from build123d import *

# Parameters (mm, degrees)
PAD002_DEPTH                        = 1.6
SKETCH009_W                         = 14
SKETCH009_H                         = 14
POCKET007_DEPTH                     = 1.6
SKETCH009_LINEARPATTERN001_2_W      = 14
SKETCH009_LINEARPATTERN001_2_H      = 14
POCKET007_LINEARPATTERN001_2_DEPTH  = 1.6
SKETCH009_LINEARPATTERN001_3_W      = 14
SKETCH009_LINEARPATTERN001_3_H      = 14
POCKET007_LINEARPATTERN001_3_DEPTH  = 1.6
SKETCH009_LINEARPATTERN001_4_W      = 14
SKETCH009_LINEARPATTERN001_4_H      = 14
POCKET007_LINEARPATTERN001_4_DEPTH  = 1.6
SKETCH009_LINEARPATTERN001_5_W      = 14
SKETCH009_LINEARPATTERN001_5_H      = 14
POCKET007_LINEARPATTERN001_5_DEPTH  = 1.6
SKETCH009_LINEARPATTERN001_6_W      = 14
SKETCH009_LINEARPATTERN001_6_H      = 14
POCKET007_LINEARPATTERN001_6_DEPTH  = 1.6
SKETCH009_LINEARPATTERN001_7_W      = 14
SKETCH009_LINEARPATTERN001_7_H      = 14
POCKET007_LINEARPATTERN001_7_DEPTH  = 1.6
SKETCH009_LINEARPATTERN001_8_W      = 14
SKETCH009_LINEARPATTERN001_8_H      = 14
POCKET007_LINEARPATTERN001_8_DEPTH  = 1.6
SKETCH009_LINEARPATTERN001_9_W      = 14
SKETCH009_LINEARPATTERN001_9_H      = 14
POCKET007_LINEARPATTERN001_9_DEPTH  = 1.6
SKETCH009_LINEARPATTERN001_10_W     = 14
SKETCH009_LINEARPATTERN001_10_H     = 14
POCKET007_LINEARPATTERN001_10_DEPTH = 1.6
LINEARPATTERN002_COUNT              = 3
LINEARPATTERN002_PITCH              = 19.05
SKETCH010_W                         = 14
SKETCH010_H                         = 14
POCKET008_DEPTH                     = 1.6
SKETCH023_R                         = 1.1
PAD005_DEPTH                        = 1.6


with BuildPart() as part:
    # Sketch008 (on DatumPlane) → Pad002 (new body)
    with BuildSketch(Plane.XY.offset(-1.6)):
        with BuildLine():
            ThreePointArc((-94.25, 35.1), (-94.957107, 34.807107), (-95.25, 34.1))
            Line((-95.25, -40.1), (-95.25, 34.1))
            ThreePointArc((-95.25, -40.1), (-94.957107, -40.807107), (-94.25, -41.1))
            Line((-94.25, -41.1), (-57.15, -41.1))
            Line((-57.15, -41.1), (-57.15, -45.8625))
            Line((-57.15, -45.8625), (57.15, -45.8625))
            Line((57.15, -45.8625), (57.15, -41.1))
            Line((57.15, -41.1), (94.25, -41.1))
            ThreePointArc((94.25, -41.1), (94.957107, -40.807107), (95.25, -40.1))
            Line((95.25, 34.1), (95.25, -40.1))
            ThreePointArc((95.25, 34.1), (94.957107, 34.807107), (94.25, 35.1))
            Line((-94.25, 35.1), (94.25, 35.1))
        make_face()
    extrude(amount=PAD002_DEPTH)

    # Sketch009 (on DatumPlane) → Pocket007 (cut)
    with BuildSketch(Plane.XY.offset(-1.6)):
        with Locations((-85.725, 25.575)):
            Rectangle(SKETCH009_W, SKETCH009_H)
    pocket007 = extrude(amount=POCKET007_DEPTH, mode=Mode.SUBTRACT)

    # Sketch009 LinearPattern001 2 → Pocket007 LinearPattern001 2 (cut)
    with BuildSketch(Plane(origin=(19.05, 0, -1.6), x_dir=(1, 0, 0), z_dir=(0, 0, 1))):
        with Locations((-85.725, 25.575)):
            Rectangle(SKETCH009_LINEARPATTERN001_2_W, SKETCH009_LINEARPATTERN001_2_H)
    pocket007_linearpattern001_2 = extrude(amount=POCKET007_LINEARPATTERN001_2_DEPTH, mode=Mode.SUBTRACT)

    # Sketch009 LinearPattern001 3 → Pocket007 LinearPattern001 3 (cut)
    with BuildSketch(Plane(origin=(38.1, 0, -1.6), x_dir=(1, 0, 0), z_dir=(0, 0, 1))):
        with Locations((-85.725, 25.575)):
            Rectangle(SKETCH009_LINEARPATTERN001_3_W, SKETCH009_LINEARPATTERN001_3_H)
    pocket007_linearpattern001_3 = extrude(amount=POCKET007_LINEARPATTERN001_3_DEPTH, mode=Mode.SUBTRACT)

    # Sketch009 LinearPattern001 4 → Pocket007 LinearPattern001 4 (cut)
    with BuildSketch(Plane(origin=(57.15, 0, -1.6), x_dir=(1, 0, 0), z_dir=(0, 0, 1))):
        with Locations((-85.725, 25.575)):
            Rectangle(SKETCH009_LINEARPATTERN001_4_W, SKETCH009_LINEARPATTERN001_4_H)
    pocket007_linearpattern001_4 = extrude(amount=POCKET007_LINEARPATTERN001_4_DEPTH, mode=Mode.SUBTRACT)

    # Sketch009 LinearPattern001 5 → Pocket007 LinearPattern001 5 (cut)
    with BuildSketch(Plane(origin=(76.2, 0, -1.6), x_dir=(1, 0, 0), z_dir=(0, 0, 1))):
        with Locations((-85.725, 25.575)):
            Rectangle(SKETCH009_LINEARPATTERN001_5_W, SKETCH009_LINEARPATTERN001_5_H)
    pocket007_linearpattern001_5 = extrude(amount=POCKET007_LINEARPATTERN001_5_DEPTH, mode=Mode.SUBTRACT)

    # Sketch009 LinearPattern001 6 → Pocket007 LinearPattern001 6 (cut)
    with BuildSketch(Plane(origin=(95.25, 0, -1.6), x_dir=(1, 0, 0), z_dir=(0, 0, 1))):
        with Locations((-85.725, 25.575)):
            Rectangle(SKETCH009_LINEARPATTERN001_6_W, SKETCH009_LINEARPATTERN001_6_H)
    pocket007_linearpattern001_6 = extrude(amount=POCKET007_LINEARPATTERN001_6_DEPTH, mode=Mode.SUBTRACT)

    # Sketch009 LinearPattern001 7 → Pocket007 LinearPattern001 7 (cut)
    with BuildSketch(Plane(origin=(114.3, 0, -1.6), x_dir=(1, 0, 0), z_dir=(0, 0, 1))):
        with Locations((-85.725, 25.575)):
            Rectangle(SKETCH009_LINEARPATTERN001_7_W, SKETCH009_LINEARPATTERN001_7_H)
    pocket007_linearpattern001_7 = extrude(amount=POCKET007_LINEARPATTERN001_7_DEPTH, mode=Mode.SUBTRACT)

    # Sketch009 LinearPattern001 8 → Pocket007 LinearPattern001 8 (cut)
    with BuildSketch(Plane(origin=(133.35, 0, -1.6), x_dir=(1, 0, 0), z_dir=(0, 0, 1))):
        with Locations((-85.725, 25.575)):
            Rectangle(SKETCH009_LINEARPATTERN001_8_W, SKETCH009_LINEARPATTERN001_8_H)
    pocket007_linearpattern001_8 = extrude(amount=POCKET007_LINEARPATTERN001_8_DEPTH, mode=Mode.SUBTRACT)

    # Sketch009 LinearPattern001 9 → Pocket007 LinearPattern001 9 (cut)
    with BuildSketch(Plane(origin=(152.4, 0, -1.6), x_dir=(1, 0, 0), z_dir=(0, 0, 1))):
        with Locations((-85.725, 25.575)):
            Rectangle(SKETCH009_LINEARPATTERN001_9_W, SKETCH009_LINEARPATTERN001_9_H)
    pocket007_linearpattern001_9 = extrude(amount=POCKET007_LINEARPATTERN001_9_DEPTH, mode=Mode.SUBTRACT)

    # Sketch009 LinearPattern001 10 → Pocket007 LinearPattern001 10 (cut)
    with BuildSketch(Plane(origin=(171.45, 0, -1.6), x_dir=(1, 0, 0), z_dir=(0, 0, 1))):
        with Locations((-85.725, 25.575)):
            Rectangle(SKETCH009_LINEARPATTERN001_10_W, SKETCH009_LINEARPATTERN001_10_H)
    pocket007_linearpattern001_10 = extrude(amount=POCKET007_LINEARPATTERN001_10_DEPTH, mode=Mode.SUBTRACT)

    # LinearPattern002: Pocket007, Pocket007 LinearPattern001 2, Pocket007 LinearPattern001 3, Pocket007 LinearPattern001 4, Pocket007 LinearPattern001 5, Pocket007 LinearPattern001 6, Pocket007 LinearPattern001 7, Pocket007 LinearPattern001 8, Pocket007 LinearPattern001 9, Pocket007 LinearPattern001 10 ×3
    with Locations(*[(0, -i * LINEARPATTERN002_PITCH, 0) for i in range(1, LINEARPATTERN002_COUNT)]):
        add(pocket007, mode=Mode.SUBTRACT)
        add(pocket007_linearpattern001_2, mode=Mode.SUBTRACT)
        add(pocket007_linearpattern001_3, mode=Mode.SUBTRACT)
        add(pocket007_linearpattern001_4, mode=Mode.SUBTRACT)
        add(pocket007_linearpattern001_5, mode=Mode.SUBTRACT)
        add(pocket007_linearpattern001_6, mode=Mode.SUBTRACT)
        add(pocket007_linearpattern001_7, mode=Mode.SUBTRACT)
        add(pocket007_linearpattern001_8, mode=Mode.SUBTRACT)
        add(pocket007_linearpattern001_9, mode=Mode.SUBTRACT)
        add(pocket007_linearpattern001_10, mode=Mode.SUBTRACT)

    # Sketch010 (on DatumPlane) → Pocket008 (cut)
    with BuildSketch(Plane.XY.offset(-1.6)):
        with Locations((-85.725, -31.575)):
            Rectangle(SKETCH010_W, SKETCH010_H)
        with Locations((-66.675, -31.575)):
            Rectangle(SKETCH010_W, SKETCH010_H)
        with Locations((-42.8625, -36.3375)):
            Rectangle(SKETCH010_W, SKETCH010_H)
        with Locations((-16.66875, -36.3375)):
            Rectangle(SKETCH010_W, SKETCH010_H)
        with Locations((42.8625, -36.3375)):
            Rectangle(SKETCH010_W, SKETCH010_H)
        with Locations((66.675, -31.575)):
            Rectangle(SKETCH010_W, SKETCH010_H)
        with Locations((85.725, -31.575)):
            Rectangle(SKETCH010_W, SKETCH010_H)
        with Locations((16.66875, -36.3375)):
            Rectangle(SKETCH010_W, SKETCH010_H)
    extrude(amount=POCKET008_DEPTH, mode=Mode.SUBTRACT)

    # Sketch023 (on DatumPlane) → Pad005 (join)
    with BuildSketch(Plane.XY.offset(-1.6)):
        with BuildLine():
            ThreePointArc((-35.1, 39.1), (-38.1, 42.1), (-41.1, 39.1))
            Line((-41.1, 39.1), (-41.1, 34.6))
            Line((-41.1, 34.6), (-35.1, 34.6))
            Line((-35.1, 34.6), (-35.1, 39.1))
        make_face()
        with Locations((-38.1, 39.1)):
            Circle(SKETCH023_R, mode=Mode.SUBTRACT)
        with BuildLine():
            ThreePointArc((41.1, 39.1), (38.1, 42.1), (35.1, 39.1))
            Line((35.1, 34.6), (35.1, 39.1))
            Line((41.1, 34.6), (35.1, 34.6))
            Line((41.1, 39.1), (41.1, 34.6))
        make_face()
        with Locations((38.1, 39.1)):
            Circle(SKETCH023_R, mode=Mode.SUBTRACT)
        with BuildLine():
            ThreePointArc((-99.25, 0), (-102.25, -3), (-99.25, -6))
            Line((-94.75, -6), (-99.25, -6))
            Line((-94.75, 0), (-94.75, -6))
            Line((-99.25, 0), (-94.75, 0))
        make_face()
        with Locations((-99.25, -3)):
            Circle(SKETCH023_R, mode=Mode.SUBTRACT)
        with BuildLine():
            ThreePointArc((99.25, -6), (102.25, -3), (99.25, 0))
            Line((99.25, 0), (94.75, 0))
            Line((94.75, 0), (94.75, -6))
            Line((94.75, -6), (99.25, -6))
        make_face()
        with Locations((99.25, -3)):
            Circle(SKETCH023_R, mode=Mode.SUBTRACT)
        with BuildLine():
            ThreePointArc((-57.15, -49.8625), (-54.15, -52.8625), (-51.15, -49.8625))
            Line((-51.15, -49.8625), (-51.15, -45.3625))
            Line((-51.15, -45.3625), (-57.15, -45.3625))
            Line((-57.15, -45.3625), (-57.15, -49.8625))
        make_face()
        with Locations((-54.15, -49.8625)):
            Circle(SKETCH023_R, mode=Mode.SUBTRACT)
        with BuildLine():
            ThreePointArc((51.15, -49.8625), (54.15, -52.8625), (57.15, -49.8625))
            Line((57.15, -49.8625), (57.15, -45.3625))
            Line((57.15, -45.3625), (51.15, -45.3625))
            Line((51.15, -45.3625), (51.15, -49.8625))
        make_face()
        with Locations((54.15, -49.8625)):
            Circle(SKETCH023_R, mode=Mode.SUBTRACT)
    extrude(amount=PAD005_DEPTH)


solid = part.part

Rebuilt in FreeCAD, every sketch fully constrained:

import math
import FreeCAD as App
import Part
import Sketcher

V = App.Vector


def add_polygon(sketch, points):
    """Adds a closed chain of lines whose ends are joined by coincident constraints."""
    first, n = sketch.GeometryCount, len(points)
    for a, b in zip(points, points[1:] + points[:1]):
        sketch.addGeometry(Part.LineSegment(App.Vector(*a, 0), App.Vector(*b, 0)), False)
    for i in range(n):
        sketch.addConstraint(Sketcher.Constraint("Coincident", first + i, 2, first + (i + 1) % n, 1))

doc = App.newDocument("Part")
body = doc.addObject("PartDesign::Body", "Body")

sketch1 = body.newObject("Sketcher::SketchObject", "Sketch")
sketch1.AttachmentSupport = (doc.getObject("XY_Plane"), [""])
sketch1.MapMode = "FlatFace"
sketch1.AttachmentOffset = App.Placement(V(0, 0, -1.6), App.Rotation())
sketch1.addGeometry(Part.ArcOfCircle(Part.Circle(V(-94.3, 34.1, 0), V(0, 0, 1), 1), math.radians(90), math.radians(180)), False)
sketch1.addGeometry(Part.LineSegment(V(-95.2, 34.1, 0), V(-95.2, -40.1, 0)), False)
sketch1.addGeometry(Part.ArcOfCircle(Part.Circle(V(-94.3, -40.1, 0), V(0, 0, 1), 1), math.radians(180), math.radians(270)), False)
sketch1.addGeometry(Part.LineSegment(V(-94.2, -41.1, 0), V(-57.1, -41.1, 0)), False)
sketch1.addGeometry(Part.LineSegment(V(-57.1, -41.1, 0), V(-57.1, -45.9, 0)), False)
sketch1.addGeometry(Part.LineSegment(V(-57.1, -45.9, 0), V(57.1, -45.9, 0)), False)
sketch1.addGeometry(Part.LineSegment(V(57.1, -45.9, 0), V(57.1, -41.1, 0)), False)
sketch1.addGeometry(Part.LineSegment(V(57.1, -41.1, 0), V(94.2, -41.1, 0)), False)
sketch1.addGeometry(Part.ArcOfCircle(Part.Circle(V(94.3, -40.1, 0), V(0, 0, 1), 1), math.radians(-90), math.radians(0)), False)
sketch1.addGeometry(Part.LineSegment(V(95.2, -40.1, 0), V(95.2, 34.1, 0)), False)
sketch1.addGeometry(Part.ArcOfCircle(Part.Circle(V(94.3, 34.1, 0), V(0, 0, 1), 1), math.radians(0), math.radians(90)), False)
sketch1.addGeometry(Part.LineSegment(V(94.2, 35.1, 0), V(-94.2, 35.1, 0)), False)
sketch1.addConstraint(Sketcher.Constraint("Tangent", 0, 2, 1, 1))
sketch1.addConstraint(Sketcher.Constraint("Tangent", 1, 2, 2, 1))
sketch1.addConstraint(Sketcher.Constraint("Tangent", 2, 2, 3, 1))
sketch1.addConstraint(Sketcher.Constraint("Coincident", 3, 2, 4, 1))
sketch1.addConstraint(Sketcher.Constraint("Coincident", 4, 2, 5, 1))
sketch1.addConstraint(Sketcher.Constraint("Coincident", 5, 2, 6, 1))
sketch1.addConstraint(Sketcher.Constraint("Coincident", 6, 2, 7, 1))
sketch1.addConstraint(Sketcher.Constraint("Tangent", 7, 2, 8, 1))
sketch1.addConstraint(Sketcher.Constraint("Tangent", 8, 2, 9, 1))
sketch1.addConstraint(Sketcher.Constraint("Tangent", 9, 2, 10, 1))
sketch1.addConstraint(Sketcher.Constraint("Tangent", 10, 2, 11, 1))
sketch1.addConstraint(Sketcher.Constraint("Tangent", 11, 2, 0, 1))
sketch1.addConstraint(Sketcher.Constraint("Vertical", 1))
sketch1.addConstraint(Sketcher.Constraint("Horizontal", 3))
sketch1.addConstraint(Sketcher.Constraint("Vertical", 4))
sketch1.addConstraint(Sketcher.Constraint("Horizontal", 5))
sketch1.addConstraint(Sketcher.Constraint("Vertical", 6))
sketch1.addConstraint(Sketcher.Constraint("Horizontal", 7))
sketch1.addConstraint(Sketcher.Constraint("Vertical", 9))
sketch1.addConstraint(Sketcher.Constraint("Horizontal", 11))
sketch1.addConstraint(Sketcher.Constraint("Equal", 0, 2))
sketch1.addConstraint(Sketcher.Constraint("Equal", 2, 8))
sketch1.addConstraint(Sketcher.Constraint("Equal", 8, 10))
sketch1.addConstraint(Sketcher.Constraint("Symmetric", 2, 3, 8, 3, -2))
sketch1.addConstraint(Sketcher.Constraint("Equal", 3, 7))
sketch1.addConstraint(Sketcher.Constraint("Radius", 0, 0.999999))
sketch1.addConstraint(Sketcher.Constraint("DistanceX", 3, 1, 3, 2, 37.1))
sketch1.addConstraint(Sketcher.Constraint("DistanceX", 5, 1, 5, 2, 114.3))
sketch1.addConstraint(Sketcher.Constraint("DistanceY", 1, 2, 1, 1, 74.2))
sketch1.addConstraint(Sketcher.Constraint("DistanceY", -1, 1, 0, 3, 34.100001))
sketch1.addConstraint(Sketcher.Constraint("DistanceY", 4, 2, 4, 1, 4.7625))
pad1 = body.newObject("PartDesign::Pad", "Pad")
pad1.Profile = sketch1
pad1.Length = 1.6

sketch2 = body.newObject("Sketcher::SketchObject", "Sketch001")
sketch2.AttachmentSupport = (doc.getObject("XY_Plane"), [""])
sketch2.MapMode = "FlatFace"
sketch2.AttachmentOffset = App.Placement(V(0, 0, -1.6), App.Rotation())
add_polygon(sketch2, [(-93, 33), (-93, 19), (-79, 19), (-79, 33)])
sketch2.addConstraint(Sketcher.Constraint("Vertical", 0))
sketch2.addConstraint(Sketcher.Constraint("Horizontal", 1))
sketch2.addConstraint(Sketcher.Constraint("Vertical", 2))
sketch2.addConstraint(Sketcher.Constraint("Horizontal", 3))
sketch2.addConstraint(Sketcher.Constraint("Equal", 3, 0))
sketch2.addConstraint(Sketcher.Constraint("DistanceX", 1, 1, 1, 2, 14.0))
sketch2.addConstraint(Sketcher.Constraint("DistanceX", 0, 2, -1, 1, 92.725))
sketch2.addConstraint(Sketcher.Constraint("DistanceY", -1, 1, 0, 2, 18.575))
pocket1 = body.newObject("PartDesign::Pocket", "Pocket")
pocket1.Profile = sketch2
pocket1.Length = 1.6
pocket1.Reversed = True

sketch3 = body.newObject("Sketcher::SketchObject", "Sketch002")
sketch3.AttachmentSupport = (doc.getObject("XY_Plane"), [""])
sketch3.MapMode = "FlatFace"
sketch3.AttachmentOffset = App.Placement(V(0, 0, -1.6), App.Rotation())
add_polygon(sketch3, [(-74, 33), (-74, 19), (-60, 19), (-60, 33)])
sketch3.addConstraint(Sketcher.Constraint("Vertical", 0))
sketch3.addConstraint(Sketcher.Constraint("Horizontal", 1))
sketch3.addConstraint(Sketcher.Constraint("Vertical", 2))
sketch3.addConstraint(Sketcher.Constraint("Horizontal", 3))
sketch3.addConstraint(Sketcher.Constraint("Equal", 3, 0))
sketch3.addConstraint(Sketcher.Constraint("DistanceX", 1, 1, 1, 2, 14.0))
sketch3.addConstraint(Sketcher.Constraint("DistanceX", 0, 2, -1, 1, 73.675))
sketch3.addConstraint(Sketcher.Constraint("DistanceY", -1, 1, 0, 2, 18.575))
pocket2 = body.newObject("PartDesign::Pocket", "Pocket001")
pocket2.Profile = sketch3
pocket2.Length = 1.6
pocket2.Reversed = True

sketch4 = body.newObject("Sketcher::SketchObject", "Sketch003")
sketch4.AttachmentSupport = (doc.getObject("XY_Plane"), [""])
sketch4.MapMode = "FlatFace"
sketch4.AttachmentOffset = App.Placement(V(0, 0, -1.6), App.Rotation())
add_polygon(sketch4, [(-55, 33), (-55, 19), (-41, 19), (-41, 33)])
sketch4.addConstraint(Sketcher.Constraint("Vertical", 0))
sketch4.addConstraint(Sketcher.Constraint("Horizontal", 1))
sketch4.addConstraint(Sketcher.Constraint("Vertical", 2))
sketch4.addConstraint(Sketcher.Constraint("Horizontal", 3))
sketch4.addConstraint(Sketcher.Constraint("Equal", 3, 0))
sketch4.addConstraint(Sketcher.Constraint("DistanceX", 1, 1, 1, 2, 14.0))
sketch4.addConstraint(Sketcher.Constraint("DistanceX", 0, 2, -1, 1, 54.625))
sketch4.addConstraint(Sketcher.Constraint("DistanceY", -1, 1, 0, 2, 18.575))
pocket3 = body.newObject("PartDesign::Pocket", "Pocket002")
pocket3.Profile = sketch4
pocket3.Length = 1.6
pocket3.Reversed = True

sketch5 = body.newObject("Sketcher::SketchObject", "Sketch004")
sketch5.AttachmentSupport = (doc.getObject("XY_Plane"), [""])
sketch5.MapMode = "FlatFace"
sketch5.AttachmentOffset = App.Placement(V(0, 0, -1.6), App.Rotation())
add_polygon(sketch5, [(-36, 33), (-36, 19), (-22, 19), (-22, 33)])
sketch5.addConstraint(Sketcher.Constraint("Vertical", 0))
sketch5.addConstraint(Sketcher.Constraint("Horizontal", 1))
sketch5.addConstraint(Sketcher.Constraint("Vertical", 2))
sketch5.addConstraint(Sketcher.Constraint("Horizontal", 3))
sketch5.addConstraint(Sketcher.Constraint("Equal", 3, 0))
sketch5.addConstraint(Sketcher.Constraint("DistanceX", 1, 1, 1, 2, 14.0))
sketch5.addConstraint(Sketcher.Constraint("DistanceX", 0, 2, -1, 1, 35.575))
sketch5.addConstraint(Sketcher.Constraint("DistanceY", -1, 1, 0, 2, 18.575))
pocket4 = body.newObject("PartDesign::Pocket", "Pocket003")
pocket4.Profile = sketch5
pocket4.Length = 1.6
pocket4.Reversed = True

sketch6 = body.newObject("Sketcher::SketchObject", "Sketch005")
sketch6.AttachmentSupport = (doc.getObject("XY_Plane"), [""])
sketch6.MapMode = "FlatFace"
sketch6.AttachmentOffset = App.Placement(V(0, 0, -1.6), App.Rotation())
add_polygon(sketch6, [(-17, 33), (-17, 19), (-3, 19), (-3, 33)])
sketch6.addConstraint(Sketcher.Constraint("Vertical", 0))
sketch6.addConstraint(Sketcher.Constraint("Horizontal", 1))
sketch6.addConstraint(Sketcher.Constraint("Vertical", 2))
sketch6.addConstraint(Sketcher.Constraint("Horizontal", 3))
sketch6.addConstraint(Sketcher.Constraint("Equal", 3, 0))
sketch6.addConstraint(Sketcher.Constraint("DistanceX", 1, 1, 1, 2, 14.0))
sketch6.addConstraint(Sketcher.Constraint("DistanceX", 0, 2, -1, 1, 16.525))
sketch6.addConstraint(Sketcher.Constraint("DistanceY", -1, 1, 0, 2, 18.575))
pocket5 = body.newObject("PartDesign::Pocket", "Pocket004")
pocket5.Profile = sketch6
pocket5.Length = 1.6
pocket5.Reversed = True

sketch7 = body.newObject("Sketcher::SketchObject", "Sketch006")
sketch7.AttachmentSupport = (doc.getObject("XY_Plane"), [""])
sketch7.MapMode = "FlatFace"
sketch7.AttachmentOffset = App.Placement(V(0, 0, -1.6), App.Rotation())
add_polygon(sketch7, [(3, 33), (3, 19), (17, 19), (17, 33)])
sketch7.addConstraint(Sketcher.Constraint("Vertical", 0))
sketch7.addConstraint(Sketcher.Constraint("Horizontal", 1))
sketch7.addConstraint(Sketcher.Constraint("Vertical", 2))
sketch7.addConstraint(Sketcher.Constraint("Horizontal", 3))
sketch7.addConstraint(Sketcher.Constraint("Equal", 3, 0))
sketch7.addConstraint(Sketcher.Constraint("DistanceX", 1, 1, 1, 2, 14.0))
sketch7.addConstraint(Sketcher.Constraint("DistanceX", -1, 1, 0, 2, 2.525))
sketch7.addConstraint(Sketcher.Constraint("DistanceY", -1, 1, 0, 2, 18.575))
pocket6 = body.newObject("PartDesign::Pocket", "Pocket005")
pocket6.Profile = sketch7
pocket6.Length = 1.6
pocket6.Reversed = True

sketch8 = body.newObject("Sketcher::SketchObject", "Sketch007")
sketch8.AttachmentSupport = (doc.getObject("XY_Plane"), [""])
sketch8.MapMode = "FlatFace"
sketch8.AttachmentOffset = App.Placement(V(0, 0, -1.6), App.Rotation())
add_polygon(sketch8, [(22, 33), (22, 19), (36, 19), (36, 33)])
sketch8.addConstraint(Sketcher.Constraint("Vertical", 0))
sketch8.addConstraint(Sketcher.Constraint("Horizontal", 1))
sketch8.addConstraint(Sketcher.Constraint("Vertical", 2))
sketch8.addConstraint(Sketcher.Constraint("Horizontal", 3))
sketch8.addConstraint(Sketcher.Constraint("Equal", 3, 0))
sketch8.addConstraint(Sketcher.Constraint("DistanceX", 1, 1, 1, 2, 14.0))
sketch8.addConstraint(Sketcher.Constraint("DistanceX", -1, 1, 0, 2, 21.575))
sketch8.addConstraint(Sketcher.Constraint("DistanceY", -1, 1, 0, 2, 18.575))
pocket7 = body.newObject("PartDesign::Pocket", "Pocket006")
pocket7.Profile = sketch8
pocket7.Length = 1.6
pocket7.Reversed = True

sketch9 = body.newObject("Sketcher::SketchObject", "Sketch008")
sketch9.AttachmentSupport = (doc.getObject("XY_Plane"), [""])
sketch9.MapMode = "FlatFace"
sketch9.AttachmentOffset = App.Placement(V(0, 0, -1.6), App.Rotation())
add_polygon(sketch9, [(41, 33), (41, 19), (55, 19), (55, 33)])
sketch9.addConstraint(Sketcher.Constraint("Vertical", 0))
sketch9.addConstraint(Sketcher.Constraint("Horizontal", 1))
sketch9.addConstraint(Sketcher.Constraint("Vertical", 2))
sketch9.addConstraint(Sketcher.Constraint("Horizontal", 3))
sketch9.addConstraint(Sketcher.Constraint("Equal", 3, 0))
sketch9.addConstraint(Sketcher.Constraint("DistanceX", 1, 1, 1, 2, 14.0))
sketch9.addConstraint(Sketcher.Constraint("DistanceX", -1, 1, 0, 2, 40.625))
sketch9.addConstraint(Sketcher.Constraint("DistanceY", -1, 1, 0, 2, 18.575))
pocket8 = body.newObject("PartDesign::Pocket", "Pocket007")
pocket8.Profile = sketch9
pocket8.Length = 1.6
pocket8.Reversed = True

sketch10 = body.newObject("Sketcher::SketchObject", "Sketch009")
sketch10.AttachmentSupport = (doc.getObject("XY_Plane"), [""])
sketch10.MapMode = "FlatFace"
sketch10.AttachmentOffset = App.Placement(V(0, 0, -1.6), App.Rotation())
add_polygon(sketch10, [(60, 33), (60, 19), (74, 19), (74, 33)])
sketch10.addConstraint(Sketcher.Constraint("Vertical", 0))
sketch10.addConstraint(Sketcher.Constraint("Horizontal", 1))
sketch10.addConstraint(Sketcher.Constraint("Vertical", 2))
sketch10.addConstraint(Sketcher.Constraint("Horizontal", 3))
sketch10.addConstraint(Sketcher.Constraint("Equal", 3, 0))
sketch10.addConstraint(Sketcher.Constraint("DistanceX", 1, 1, 1, 2, 14.0))
sketch10.addConstraint(Sketcher.Constraint("DistanceX", -1, 1, 0, 2, 59.675))
sketch10.addConstraint(Sketcher.Constraint("DistanceY", -1, 1, 0, 2, 18.575))
pocket9 = body.newObject("PartDesign::Pocket", "Pocket008")
pocket9.Profile = sketch10
pocket9.Length = 1.6
pocket9.Reversed = True

sketch11 = body.newObject("Sketcher::SketchObject", "Sketch010")
sketch11.AttachmentSupport = (doc.getObject("XY_Plane"), [""])
sketch11.MapMode = "FlatFace"
sketch11.AttachmentOffset = App.Placement(V(0, 0, -1.6), App.Rotation())
add_polygon(sketch11, [(79, 33), (79, 19), (93, 19), (93, 33)])
sketch11.addConstraint(Sketcher.Constraint("Vertical", 0))
sketch11.addConstraint(Sketcher.Constraint("Horizontal", 1))
sketch11.addConstraint(Sketcher.Constraint("Vertical", 2))
sketch11.addConstraint(Sketcher.Constraint("Horizontal", 3))
sketch11.addConstraint(Sketcher.Constraint("Equal", 3, 0))
sketch11.addConstraint(Sketcher.Constraint("DistanceX", 1, 1, 1, 2, 14.0))
sketch11.addConstraint(Sketcher.Constraint("DistanceX", -1, 1, 0, 2, 78.725))
sketch11.addConstraint(Sketcher.Constraint("DistanceY", -1, 1, 0, 2, 18.575))
pocket10 = body.newObject("PartDesign::Pocket", "Pocket009")
pocket10.Profile = sketch11
pocket10.Length = 1.6
pocket10.Reversed = True
doc.recompute()

linearpattern = body.newObject("PartDesign::LinearPattern", "LinearPattern")
linearpattern.Originals = [pocket1, pocket2, pocket3, pocket4, pocket5, pocket6, pocket7, pocket8, pocket9, pocket10]
linearpattern.Direction = (doc.getObject("Y_Axis"), [""])
linearpattern.Mode = "offset"
linearpattern.Offset = 19.05
linearpattern.Occurrences = 3
linearpattern.Reversed = True
body.Tip = linearpattern

sketch12 = body.newObject("Sketcher::SketchObject", "Sketch011")
sketch12.AttachmentSupport = (doc.getObject("XY_Plane"), [""])
sketch12.MapMode = "FlatFace"
sketch12.AttachmentOffset = App.Placement(V(0, 0, -1.6), App.Rotation())
add_polygon(sketch12, [(-93, -25), (-93, -39), (-79, -39), (-79, -25)])
add_polygon(sketch12, [(-74, -25), (-74, -39), (-60, -39), (-60, -25)])
add_polygon(sketch12, [(-50, -29), (-50, -43), (-36, -43), (-36, -29)])
add_polygon(sketch12, [(-24, -29), (-24, -43), (-10, -43), (-10, -29)])
add_polygon(sketch12, [(36, -29), (36, -43), (50, -43), (50, -29)])
add_polygon(sketch12, [(60, -25), (60, -39), (74, -39), (74, -25)])
add_polygon(sketch12, [(79, -25), (79, -39), (93, -39), (93, -25)])
add_polygon(sketch12, [(10, -29), (10, -43), (24, -43), (24, -29)])
sketch12.addConstraint(Sketcher.Constraint("Vertical", 0))
sketch12.addConstraint(Sketcher.Constraint("Horizontal", 1))
sketch12.addConstraint(Sketcher.Constraint("Vertical", 2))
sketch12.addConstraint(Sketcher.Constraint("Horizontal", 3))
sketch12.addConstraint(Sketcher.Constraint("Vertical", 4))
sketch12.addConstraint(Sketcher.Constraint("Horizontal", 5))
sketch12.addConstraint(Sketcher.Constraint("Vertical", 6))
sketch12.addConstraint(Sketcher.Constraint("Horizontal", 7))
sketch12.addConstraint(Sketcher.Constraint("Vertical", 8))
sketch12.addConstraint(Sketcher.Constraint("Horizontal", 9))
sketch12.addConstraint(Sketcher.Constraint("Vertical", 10))
sketch12.addConstraint(Sketcher.Constraint("Horizontal", 11))
sketch12.addConstraint(Sketcher.Constraint("Vertical", 12))
sketch12.addConstraint(Sketcher.Constraint("Horizontal", 13))
sketch12.addConstraint(Sketcher.Constraint("Vertical", 14))
sketch12.addConstraint(Sketcher.Constraint("Horizontal", 15))
sketch12.addConstraint(Sketcher.Constraint("Vertical", 16))
sketch12.addConstraint(Sketcher.Constraint("Horizontal", 17))
sketch12.addConstraint(Sketcher.Constraint("Vertical", 18))
sketch12.addConstraint(Sketcher.Constraint("Horizontal", 19))
sketch12.addConstraint(Sketcher.Constraint("Vertical", 20))
sketch12.addConstraint(Sketcher.Constraint("Horizontal", 21))
sketch12.addConstraint(Sketcher.Constraint("Vertical", 22))
sketch12.addConstraint(Sketcher.Constraint("Horizontal", 23))
sketch12.addConstraint(Sketcher.Constraint("Vertical", 24))
sketch12.addConstraint(Sketcher.Constraint("Horizontal", 25))
sketch12.addConstraint(Sketcher.Constraint("Vertical", 26))
sketch12.addConstraint(Sketcher.Constraint("Horizontal", 27))
sketch12.addConstraint(Sketcher.Constraint("Vertical", 28))
sketch12.addConstraint(Sketcher.Constraint("Horizontal", 29))
sketch12.addConstraint(Sketcher.Constraint("Vertical", 30))
sketch12.addConstraint(Sketcher.Constraint("Horizontal", 31))
sketch12.addConstraint(Sketcher.Constraint("Symmetric", 9, 2, 16, 2, -2))
sketch12.addConstraint(Sketcher.Constraint("Symmetric", 11, 2, 18, 2, -2))
sketch12.addConstraint(Sketcher.Constraint("Symmetric", 5, 2, 20, 2, -2))
sketch12.addConstraint(Sketcher.Constraint("Symmetric", 7, 2, 22, 2, -2))
sketch12.addConstraint(Sketcher.Constraint("Symmetric", 1, 2, 24, 2, -2))
sketch12.addConstraint(Sketcher.Constraint("Symmetric", 3, 2, 26, 2, -2))
sketch12.addConstraint(Sketcher.Constraint("Symmetric", 13, 2, 28, 2, -2))
sketch12.addConstraint(Sketcher.Constraint("Symmetric", 15, 2, 30, 2, -2))
sketch12.addConstraint(Sketcher.Constraint("Horizontal", 1, 2, 4, 2))
sketch12.addConstraint(Sketcher.Constraint("Horizontal", 3, 2, 6, 2))
sketch12.addConstraint(Sketcher.Constraint("Horizontal", 9, 2, 12, 2))
sketch12.addConstraint(Sketcher.Constraint("Horizontal", 11, 2, 14, 2))
sketch12.addConstraint(Sketcher.Constraint("Equal", 3, 5))
sketch12.addConstraint(Sketcher.Constraint("Equal", 7, 9))
sketch12.addConstraint(Sketcher.Constraint("Equal", 11, 13))
sketch12.addConstraint(Sketcher.Constraint("Equal", 31, 0))
sketch12.addConstraint(Sketcher.Constraint("Equal", 6, 8))
sketch12.addConstraint(Sketcher.Constraint("DistanceX", 1, 1, 1, 2, 14.0))
sketch12.addConstraint(Sketcher.Constraint("DistanceX", 1, 2, 4, 2, 5.05))
sketch12.addConstraint(Sketcher.Constraint("DistanceX", 0, 2, -1, 1, 92.725))
sketch12.addConstraint(Sketcher.Constraint("DistanceY", 0, 2, -1, 1, 38.575))
sketch12.addConstraint(Sketcher.Constraint("DistanceX", 9, 2, 16, 2, 71.725))
sketch12.addConstraint(Sketcher.Constraint("DistanceY", 8, 2, -1, 1, 43.3375))
sketch12.addConstraint(Sketcher.Constraint("DistanceX", 13, 2, 28, 2, 19.3375))
pocket11 = body.newObject("PartDesign::Pocket", "Pocket010")
pocket11.Profile = sketch12
pocket11.Length = 1.6
pocket11.Reversed = True

sketch13 = body.newObject("Sketcher::SketchObject", "Sketch012")
sketch13.AttachmentSupport = (doc.getObject("XY_Plane"), [""])
sketch13.MapMode = "FlatFace"
sketch13.AttachmentOffset = App.Placement(V(0, 0, -1.6), App.Rotation())
sketch13.addGeometry(Part.ArcOfCircle(Part.Circle(V(-38.1, 39.1, 0), V(0, 0, 1), 3), math.radians(0), math.radians(180)), False)
sketch13.addGeometry(Part.LineSegment(V(-41.1, 39.1, 0), V(-41.1, 34.6, 0)), False)
sketch13.addGeometry(Part.LineSegment(V(-41.1, 34.6, 0), V(-35.1, 34.6, 0)), False)
sketch13.addGeometry(Part.LineSegment(V(-35.1, 34.6, 0), V(-35.1, 39.1, 0)), False)
sketch13.addGeometry(Part.Circle(V(-38.1, 39.1, 0), V(0, 0, 1), 1.1), False)
sketch13.addGeometry(Part.ArcOfCircle(Part.Circle(V(38.1, 39.1, 0), V(0, 0, 1), 3), math.radians(0), math.radians(180)), False)
sketch13.addGeometry(Part.LineSegment(V(35.1, 39.1, 0), V(35.1, 34.6, 0)), False)
sketch13.addGeometry(Part.LineSegment(V(35.1, 34.6, 0), V(41.1, 34.6, 0)), False)
sketch13.addGeometry(Part.LineSegment(V(41.1, 34.6, 0), V(41.1, 39.1, 0)), False)
sketch13.addGeometry(Part.Circle(V(38.1, 39.1, 0), V(0, 0, 1), 1.1), False)
sketch13.addGeometry(Part.ArcOfCircle(Part.Circle(V(-99.2, -3, 0), V(0, 0, 1), 3), math.radians(90), math.radians(270)), False)
sketch13.addGeometry(Part.LineSegment(V(-99.2, -6, 0), V(-94.8, -6, 0)), False)
sketch13.addGeometry(Part.LineSegment(V(-94.8, -6, 0), V(-94.8, 0, 0)), False)
sketch13.addGeometry(Part.LineSegment(V(-94.8, 0, 0), V(-99.2, 0, 0)), False)
sketch13.addGeometry(Part.Circle(V(-99.2, -3, 0), V(0, 0, 1), 1.1), False)
sketch13.addGeometry(Part.ArcOfCircle(Part.Circle(V(99.2, -3, 0), V(0, 0, 1), 3), math.radians(-90), math.radians(90)), False)
sketch13.addGeometry(Part.LineSegment(V(99.2, 0, 0), V(94.8, 0, 0)), False)
sketch13.addGeometry(Part.LineSegment(V(94.8, 0, 0), V(94.8, -6, 0)), False)
sketch13.addGeometry(Part.LineSegment(V(94.8, -6, 0), V(99.2, -6, 0)), False)
sketch13.addGeometry(Part.Circle(V(99.2, -3, 0), V(0, 0, 1), 1.1), False)
sketch13.addGeometry(Part.ArcOfCircle(Part.Circle(V(-54.1, -49.9, 0), V(0, 0, 1), 3), math.radians(180), math.radians(360)), False)
sketch13.addGeometry(Part.LineSegment(V(-51.1, -49.9, 0), V(-51.1, -45.4, 0)), False)
sketch13.addGeometry(Part.LineSegment(V(-51.1, -45.4, 0), V(-57.1, -45.4, 0)), False)
sketch13.addGeometry(Part.LineSegment(V(-57.1, -45.4, 0), V(-57.1, -49.9, 0)), False)
sketch13.addGeometry(Part.Circle(V(-54.1, -49.9, 0), V(0, 0, 1), 1.1), False)
sketch13.addGeometry(Part.ArcOfCircle(Part.Circle(V(54.1, -49.9, 0), V(0, 0, 1), 3), math.radians(180), math.radians(360)), False)
sketch13.addGeometry(Part.LineSegment(V(57.1, -49.9, 0), V(57.1, -45.4, 0)), False)
sketch13.addGeometry(Part.LineSegment(V(57.1, -45.4, 0), V(51.1, -45.4, 0)), False)
sketch13.addGeometry(Part.LineSegment(V(51.1, -45.4, 0), V(51.1, -49.9, 0)), False)
sketch13.addGeometry(Part.Circle(V(54.1, -49.9, 0), V(0, 0, 1), 1.1), False)
sketch13.addConstraint(Sketcher.Constraint("Tangent", 0, 2, 1, 1))
sketch13.addConstraint(Sketcher.Constraint("Coincident", 1, 2, 2, 1))
sketch13.addConstraint(Sketcher.Constraint("Coincident", 2, 2, 3, 1))
sketch13.addConstraint(Sketcher.Constraint("Tangent", 3, 2, 0, 1))
sketch13.addConstraint(Sketcher.Constraint("Tangent", 5, 2, 6, 1))
sketch13.addConstraint(Sketcher.Constraint("Coincident", 6, 2, 7, 1))
sketch13.addConstraint(Sketcher.Constraint("Coincident", 7, 2, 8, 1))
sketch13.addConstraint(Sketcher.Constraint("Tangent", 8, 2, 5, 1))
sketch13.addConstraint(Sketcher.Constraint("Tangent", 10, 2, 11, 1))
sketch13.addConstraint(Sketcher.Constraint("Coincident", 11, 2, 12, 1))
sketch13.addConstraint(Sketcher.Constraint("Coincident", 12, 2, 13, 1))
sketch13.addConstraint(Sketcher.Constraint("Tangent", 13, 2, 10, 1))
sketch13.addConstraint(Sketcher.Constraint("Tangent", 15, 2, 16, 1))
sketch13.addConstraint(Sketcher.Constraint("Coincident", 16, 2, 17, 1))
sketch13.addConstraint(Sketcher.Constraint("Coincident", 17, 2, 18, 1))
sketch13.addConstraint(Sketcher.Constraint("Tangent", 18, 2, 15, 1))
sketch13.addConstraint(Sketcher.Constraint("Tangent", 20, 2, 21, 1))
sketch13.addConstraint(Sketcher.Constraint("Coincident", 21, 2, 22, 1))
sketch13.addConstraint(Sketcher.Constraint("Coincident", 22, 2, 23, 1))
sketch13.addConstraint(Sketcher.Constraint("Tangent", 23, 2, 20, 1))
sketch13.addConstraint(Sketcher.Constraint("Tangent", 25, 2, 26, 1))
sketch13.addConstraint(Sketcher.Constraint("Coincident", 26, 2, 27, 1))
sketch13.addConstraint(Sketcher.Constraint("Coincident", 27, 2, 28, 1))
sketch13.addConstraint(Sketcher.Constraint("Tangent", 28, 2, 25, 1))
sketch13.addConstraint(Sketcher.Constraint("Vertical", 1))
sketch13.addConstraint(Sketcher.Constraint("Horizontal", 2))
sketch13.addConstraint(Sketcher.Constraint("Vertical", 3))
sketch13.addConstraint(Sketcher.Constraint("Vertical", 6))
sketch13.addConstraint(Sketcher.Constraint("Horizontal", 7))
sketch13.addConstraint(Sketcher.Constraint("Vertical", 8))
sketch13.addConstraint(Sketcher.Constraint("Horizontal", 11))
sketch13.addConstraint(Sketcher.Constraint("Vertical", 12))
sketch13.addConstraint(Sketcher.Constraint("Horizontal", 13))
sketch13.addConstraint(Sketcher.Constraint("Horizontal", 16))
sketch13.addConstraint(Sketcher.Constraint("Vertical", 17))
sketch13.addConstraint(Sketcher.Constraint("Horizontal", 18))
sketch13.addConstraint(Sketcher.Constraint("Vertical", 21))
sketch13.addConstraint(Sketcher.Constraint("Horizontal", 22))
sketch13.addConstraint(Sketcher.Constraint("Vertical", 23))
sketch13.addConstraint(Sketcher.Constraint("Vertical", 26))
sketch13.addConstraint(Sketcher.Constraint("Horizontal", 27))
sketch13.addConstraint(Sketcher.Constraint("Vertical", 28))
sketch13.addConstraint(Sketcher.Constraint("Coincident", 4, 3, 0, 3))
sketch13.addConstraint(Sketcher.Constraint("Coincident", 9, 3, 5, 3))
sketch13.addConstraint(Sketcher.Constraint("Coincident", 14, 3, 10, 3))
sketch13.addConstraint(Sketcher.Constraint("Coincident", 19, 3, 15, 3))
sketch13.addConstraint(Sketcher.Constraint("Coincident", 24, 3, 20, 3))
sketch13.addConstraint(Sketcher.Constraint("Coincident", 29, 3, 25, 3))
sketch13.addConstraint(Sketcher.Constraint("Equal", 0, 5))
sketch13.addConstraint(Sketcher.Constraint("Equal", 4, 9))
sketch13.addConstraint(Sketcher.Constraint("Equal", 5, 10))
sketch13.addConstraint(Sketcher.Constraint("Equal", 9, 14))
sketch13.addConstraint(Sketcher.Constraint("Equal", 10, 15))
sketch13.addConstraint(Sketcher.Constraint("Equal", 14, 19))
sketch13.addConstraint(Sketcher.Constraint("Equal", 15, 20))
sketch13.addConstraint(Sketcher.Constraint("Equal", 19, 24))
sketch13.addConstraint(Sketcher.Constraint("Equal", 20, 25))
sketch13.addConstraint(Sketcher.Constraint("Equal", 24, 29))
sketch13.addConstraint(Sketcher.Constraint("Symmetric", 13, 2, 15, 2, -1, 1))
sketch13.addConstraint(Sketcher.Constraint("Symmetric", 0, 3, 5, 3, -2))
sketch13.addConstraint(Sketcher.Constraint("Symmetric", 20, 3, 25, 3, -2))
sketch13.addConstraint(Sketcher.Constraint("Symmetric", 12, 2, 16, 2, -2))
sketch13.addConstraint(Sketcher.Constraint("Horizontal", 2, 2, 6, 2))
sketch13.addConstraint(Sketcher.Constraint("Horizontal", 22, 2, 26, 2))
sketch13.addConstraint(Sketcher.Constraint("Equal", 18, 1))
sketch13.addConstraint(Sketcher.Constraint("Equal", 8, 21))
sketch13.addConstraint(Sketcher.Constraint("Radius", 0, 3.0))
sketch13.addConstraint(Sketcher.Constraint("Diameter", 4, 2.2))
sketch13.addConstraint(Sketcher.Constraint("DistanceX", 11, 1, 11, 2, 4.5))
sketch13.addConstraint(Sketcher.Constraint("DistanceX", 0, 3, -1, 1, 38.1))
sketch13.addConstraint(Sketcher.Constraint("DistanceY", -1, 1, 0, 3, 39.1))
sketch13.addConstraint(Sketcher.Constraint("DistanceX", 10, 3, 15, 3, 198.5))
sketch13.addConstraint(Sketcher.Constraint("DistanceX", 10, 3, 20, 3, 45.1))
sketch13.addConstraint(Sketcher.Constraint("DistanceY", 20, 3, -1, 1, 49.8625))
pad2 = body.newObject("PartDesign::Pad", "Pad001")
pad2.Profile = sketch13
pad2.Length = 1.6

doc.recompute()
